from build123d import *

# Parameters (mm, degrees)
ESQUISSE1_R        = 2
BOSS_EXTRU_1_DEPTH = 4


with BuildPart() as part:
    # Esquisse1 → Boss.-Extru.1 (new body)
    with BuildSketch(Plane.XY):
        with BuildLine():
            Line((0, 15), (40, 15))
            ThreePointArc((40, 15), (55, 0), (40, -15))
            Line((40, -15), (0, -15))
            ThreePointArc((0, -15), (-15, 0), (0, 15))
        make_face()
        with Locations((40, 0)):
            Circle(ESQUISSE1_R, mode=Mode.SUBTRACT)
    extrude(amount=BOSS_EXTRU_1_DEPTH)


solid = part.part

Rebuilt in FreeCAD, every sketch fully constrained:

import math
import FreeCAD as App
import Part
import Sketcher

V = App.Vector

doc = App.newDocument("Part")
body = doc.addObject("PartDesign::Body", "Body")

sketch1 = body.newObject("Sketcher::SketchObject", "Sketch")
sketch1.AttachmentSupport = (doc.getObject("XY_Plane"), [""])
sketch1.MapMode = "FlatFace"
sketch1.addGeometry(Part.LineSegment(V(40, 15, 0), V(0, 15, 0)), False)
sketch1.addGeometry(Part.ArcOfCircle(Part.Circle(V(0, 0, 0), V(0, 0, 1), 15), math.radians(90), math.radians(270)), False)
sketch1.addGeometry(Part.LineSegment(V(0, -15, 0), V(40, -15, 0)), False)
sketch1.addGeometry(Part.ArcOfCircle(Part.Circle(V(40, 0, 0), V(0, 0, 1), 15), math.radians(-90), math.radians(90)), False)
sketch1.addGeometry(Part.Circle(V(40, 0, 0), V(0, 0, 1), 2), False)
sketch1.addConstraint(Sketcher.Constraint("Tangent", 0, 2, 1, 1))
sketch1.addConstraint(Sketcher.Constraint("Tangent", 1, 2, 2, 1))
sketch1.addConstraint(Sketcher.Constraint("Tangent", 2, 2, 3, 1))
sketch1.addConstraint(Sketcher.Constraint("Tangent", 3, 2, 0, 1))
sketch1.addConstraint(Sketcher.Constraint("Horizontal", 0))
sketch1.addConstraint(Sketcher.Constraint("Horizontal", 2))
sketch1.addConstraint(Sketcher.Constraint("Coincident", 1, 3, -1, 1))
sketch1.addConstraint(Sketcher.Constraint("Coincident", 4, 3, 3, 3))
sketch1.addConstraint(Sketcher.Constraint("Diameter", 4, 4.0))
sketch1.addConstraint(Sketcher.Constraint("Radius", 1, 15.0))
sketch1.addConstraint(Sketcher.Constraint("DistanceX", 0, 2, 0, 1, 40.0))
pad1 = body.newObject("PartDesign::Pad", "Pad")
pad1.Profile = sketch1
pad1.Length = 4

doc.recompute()
